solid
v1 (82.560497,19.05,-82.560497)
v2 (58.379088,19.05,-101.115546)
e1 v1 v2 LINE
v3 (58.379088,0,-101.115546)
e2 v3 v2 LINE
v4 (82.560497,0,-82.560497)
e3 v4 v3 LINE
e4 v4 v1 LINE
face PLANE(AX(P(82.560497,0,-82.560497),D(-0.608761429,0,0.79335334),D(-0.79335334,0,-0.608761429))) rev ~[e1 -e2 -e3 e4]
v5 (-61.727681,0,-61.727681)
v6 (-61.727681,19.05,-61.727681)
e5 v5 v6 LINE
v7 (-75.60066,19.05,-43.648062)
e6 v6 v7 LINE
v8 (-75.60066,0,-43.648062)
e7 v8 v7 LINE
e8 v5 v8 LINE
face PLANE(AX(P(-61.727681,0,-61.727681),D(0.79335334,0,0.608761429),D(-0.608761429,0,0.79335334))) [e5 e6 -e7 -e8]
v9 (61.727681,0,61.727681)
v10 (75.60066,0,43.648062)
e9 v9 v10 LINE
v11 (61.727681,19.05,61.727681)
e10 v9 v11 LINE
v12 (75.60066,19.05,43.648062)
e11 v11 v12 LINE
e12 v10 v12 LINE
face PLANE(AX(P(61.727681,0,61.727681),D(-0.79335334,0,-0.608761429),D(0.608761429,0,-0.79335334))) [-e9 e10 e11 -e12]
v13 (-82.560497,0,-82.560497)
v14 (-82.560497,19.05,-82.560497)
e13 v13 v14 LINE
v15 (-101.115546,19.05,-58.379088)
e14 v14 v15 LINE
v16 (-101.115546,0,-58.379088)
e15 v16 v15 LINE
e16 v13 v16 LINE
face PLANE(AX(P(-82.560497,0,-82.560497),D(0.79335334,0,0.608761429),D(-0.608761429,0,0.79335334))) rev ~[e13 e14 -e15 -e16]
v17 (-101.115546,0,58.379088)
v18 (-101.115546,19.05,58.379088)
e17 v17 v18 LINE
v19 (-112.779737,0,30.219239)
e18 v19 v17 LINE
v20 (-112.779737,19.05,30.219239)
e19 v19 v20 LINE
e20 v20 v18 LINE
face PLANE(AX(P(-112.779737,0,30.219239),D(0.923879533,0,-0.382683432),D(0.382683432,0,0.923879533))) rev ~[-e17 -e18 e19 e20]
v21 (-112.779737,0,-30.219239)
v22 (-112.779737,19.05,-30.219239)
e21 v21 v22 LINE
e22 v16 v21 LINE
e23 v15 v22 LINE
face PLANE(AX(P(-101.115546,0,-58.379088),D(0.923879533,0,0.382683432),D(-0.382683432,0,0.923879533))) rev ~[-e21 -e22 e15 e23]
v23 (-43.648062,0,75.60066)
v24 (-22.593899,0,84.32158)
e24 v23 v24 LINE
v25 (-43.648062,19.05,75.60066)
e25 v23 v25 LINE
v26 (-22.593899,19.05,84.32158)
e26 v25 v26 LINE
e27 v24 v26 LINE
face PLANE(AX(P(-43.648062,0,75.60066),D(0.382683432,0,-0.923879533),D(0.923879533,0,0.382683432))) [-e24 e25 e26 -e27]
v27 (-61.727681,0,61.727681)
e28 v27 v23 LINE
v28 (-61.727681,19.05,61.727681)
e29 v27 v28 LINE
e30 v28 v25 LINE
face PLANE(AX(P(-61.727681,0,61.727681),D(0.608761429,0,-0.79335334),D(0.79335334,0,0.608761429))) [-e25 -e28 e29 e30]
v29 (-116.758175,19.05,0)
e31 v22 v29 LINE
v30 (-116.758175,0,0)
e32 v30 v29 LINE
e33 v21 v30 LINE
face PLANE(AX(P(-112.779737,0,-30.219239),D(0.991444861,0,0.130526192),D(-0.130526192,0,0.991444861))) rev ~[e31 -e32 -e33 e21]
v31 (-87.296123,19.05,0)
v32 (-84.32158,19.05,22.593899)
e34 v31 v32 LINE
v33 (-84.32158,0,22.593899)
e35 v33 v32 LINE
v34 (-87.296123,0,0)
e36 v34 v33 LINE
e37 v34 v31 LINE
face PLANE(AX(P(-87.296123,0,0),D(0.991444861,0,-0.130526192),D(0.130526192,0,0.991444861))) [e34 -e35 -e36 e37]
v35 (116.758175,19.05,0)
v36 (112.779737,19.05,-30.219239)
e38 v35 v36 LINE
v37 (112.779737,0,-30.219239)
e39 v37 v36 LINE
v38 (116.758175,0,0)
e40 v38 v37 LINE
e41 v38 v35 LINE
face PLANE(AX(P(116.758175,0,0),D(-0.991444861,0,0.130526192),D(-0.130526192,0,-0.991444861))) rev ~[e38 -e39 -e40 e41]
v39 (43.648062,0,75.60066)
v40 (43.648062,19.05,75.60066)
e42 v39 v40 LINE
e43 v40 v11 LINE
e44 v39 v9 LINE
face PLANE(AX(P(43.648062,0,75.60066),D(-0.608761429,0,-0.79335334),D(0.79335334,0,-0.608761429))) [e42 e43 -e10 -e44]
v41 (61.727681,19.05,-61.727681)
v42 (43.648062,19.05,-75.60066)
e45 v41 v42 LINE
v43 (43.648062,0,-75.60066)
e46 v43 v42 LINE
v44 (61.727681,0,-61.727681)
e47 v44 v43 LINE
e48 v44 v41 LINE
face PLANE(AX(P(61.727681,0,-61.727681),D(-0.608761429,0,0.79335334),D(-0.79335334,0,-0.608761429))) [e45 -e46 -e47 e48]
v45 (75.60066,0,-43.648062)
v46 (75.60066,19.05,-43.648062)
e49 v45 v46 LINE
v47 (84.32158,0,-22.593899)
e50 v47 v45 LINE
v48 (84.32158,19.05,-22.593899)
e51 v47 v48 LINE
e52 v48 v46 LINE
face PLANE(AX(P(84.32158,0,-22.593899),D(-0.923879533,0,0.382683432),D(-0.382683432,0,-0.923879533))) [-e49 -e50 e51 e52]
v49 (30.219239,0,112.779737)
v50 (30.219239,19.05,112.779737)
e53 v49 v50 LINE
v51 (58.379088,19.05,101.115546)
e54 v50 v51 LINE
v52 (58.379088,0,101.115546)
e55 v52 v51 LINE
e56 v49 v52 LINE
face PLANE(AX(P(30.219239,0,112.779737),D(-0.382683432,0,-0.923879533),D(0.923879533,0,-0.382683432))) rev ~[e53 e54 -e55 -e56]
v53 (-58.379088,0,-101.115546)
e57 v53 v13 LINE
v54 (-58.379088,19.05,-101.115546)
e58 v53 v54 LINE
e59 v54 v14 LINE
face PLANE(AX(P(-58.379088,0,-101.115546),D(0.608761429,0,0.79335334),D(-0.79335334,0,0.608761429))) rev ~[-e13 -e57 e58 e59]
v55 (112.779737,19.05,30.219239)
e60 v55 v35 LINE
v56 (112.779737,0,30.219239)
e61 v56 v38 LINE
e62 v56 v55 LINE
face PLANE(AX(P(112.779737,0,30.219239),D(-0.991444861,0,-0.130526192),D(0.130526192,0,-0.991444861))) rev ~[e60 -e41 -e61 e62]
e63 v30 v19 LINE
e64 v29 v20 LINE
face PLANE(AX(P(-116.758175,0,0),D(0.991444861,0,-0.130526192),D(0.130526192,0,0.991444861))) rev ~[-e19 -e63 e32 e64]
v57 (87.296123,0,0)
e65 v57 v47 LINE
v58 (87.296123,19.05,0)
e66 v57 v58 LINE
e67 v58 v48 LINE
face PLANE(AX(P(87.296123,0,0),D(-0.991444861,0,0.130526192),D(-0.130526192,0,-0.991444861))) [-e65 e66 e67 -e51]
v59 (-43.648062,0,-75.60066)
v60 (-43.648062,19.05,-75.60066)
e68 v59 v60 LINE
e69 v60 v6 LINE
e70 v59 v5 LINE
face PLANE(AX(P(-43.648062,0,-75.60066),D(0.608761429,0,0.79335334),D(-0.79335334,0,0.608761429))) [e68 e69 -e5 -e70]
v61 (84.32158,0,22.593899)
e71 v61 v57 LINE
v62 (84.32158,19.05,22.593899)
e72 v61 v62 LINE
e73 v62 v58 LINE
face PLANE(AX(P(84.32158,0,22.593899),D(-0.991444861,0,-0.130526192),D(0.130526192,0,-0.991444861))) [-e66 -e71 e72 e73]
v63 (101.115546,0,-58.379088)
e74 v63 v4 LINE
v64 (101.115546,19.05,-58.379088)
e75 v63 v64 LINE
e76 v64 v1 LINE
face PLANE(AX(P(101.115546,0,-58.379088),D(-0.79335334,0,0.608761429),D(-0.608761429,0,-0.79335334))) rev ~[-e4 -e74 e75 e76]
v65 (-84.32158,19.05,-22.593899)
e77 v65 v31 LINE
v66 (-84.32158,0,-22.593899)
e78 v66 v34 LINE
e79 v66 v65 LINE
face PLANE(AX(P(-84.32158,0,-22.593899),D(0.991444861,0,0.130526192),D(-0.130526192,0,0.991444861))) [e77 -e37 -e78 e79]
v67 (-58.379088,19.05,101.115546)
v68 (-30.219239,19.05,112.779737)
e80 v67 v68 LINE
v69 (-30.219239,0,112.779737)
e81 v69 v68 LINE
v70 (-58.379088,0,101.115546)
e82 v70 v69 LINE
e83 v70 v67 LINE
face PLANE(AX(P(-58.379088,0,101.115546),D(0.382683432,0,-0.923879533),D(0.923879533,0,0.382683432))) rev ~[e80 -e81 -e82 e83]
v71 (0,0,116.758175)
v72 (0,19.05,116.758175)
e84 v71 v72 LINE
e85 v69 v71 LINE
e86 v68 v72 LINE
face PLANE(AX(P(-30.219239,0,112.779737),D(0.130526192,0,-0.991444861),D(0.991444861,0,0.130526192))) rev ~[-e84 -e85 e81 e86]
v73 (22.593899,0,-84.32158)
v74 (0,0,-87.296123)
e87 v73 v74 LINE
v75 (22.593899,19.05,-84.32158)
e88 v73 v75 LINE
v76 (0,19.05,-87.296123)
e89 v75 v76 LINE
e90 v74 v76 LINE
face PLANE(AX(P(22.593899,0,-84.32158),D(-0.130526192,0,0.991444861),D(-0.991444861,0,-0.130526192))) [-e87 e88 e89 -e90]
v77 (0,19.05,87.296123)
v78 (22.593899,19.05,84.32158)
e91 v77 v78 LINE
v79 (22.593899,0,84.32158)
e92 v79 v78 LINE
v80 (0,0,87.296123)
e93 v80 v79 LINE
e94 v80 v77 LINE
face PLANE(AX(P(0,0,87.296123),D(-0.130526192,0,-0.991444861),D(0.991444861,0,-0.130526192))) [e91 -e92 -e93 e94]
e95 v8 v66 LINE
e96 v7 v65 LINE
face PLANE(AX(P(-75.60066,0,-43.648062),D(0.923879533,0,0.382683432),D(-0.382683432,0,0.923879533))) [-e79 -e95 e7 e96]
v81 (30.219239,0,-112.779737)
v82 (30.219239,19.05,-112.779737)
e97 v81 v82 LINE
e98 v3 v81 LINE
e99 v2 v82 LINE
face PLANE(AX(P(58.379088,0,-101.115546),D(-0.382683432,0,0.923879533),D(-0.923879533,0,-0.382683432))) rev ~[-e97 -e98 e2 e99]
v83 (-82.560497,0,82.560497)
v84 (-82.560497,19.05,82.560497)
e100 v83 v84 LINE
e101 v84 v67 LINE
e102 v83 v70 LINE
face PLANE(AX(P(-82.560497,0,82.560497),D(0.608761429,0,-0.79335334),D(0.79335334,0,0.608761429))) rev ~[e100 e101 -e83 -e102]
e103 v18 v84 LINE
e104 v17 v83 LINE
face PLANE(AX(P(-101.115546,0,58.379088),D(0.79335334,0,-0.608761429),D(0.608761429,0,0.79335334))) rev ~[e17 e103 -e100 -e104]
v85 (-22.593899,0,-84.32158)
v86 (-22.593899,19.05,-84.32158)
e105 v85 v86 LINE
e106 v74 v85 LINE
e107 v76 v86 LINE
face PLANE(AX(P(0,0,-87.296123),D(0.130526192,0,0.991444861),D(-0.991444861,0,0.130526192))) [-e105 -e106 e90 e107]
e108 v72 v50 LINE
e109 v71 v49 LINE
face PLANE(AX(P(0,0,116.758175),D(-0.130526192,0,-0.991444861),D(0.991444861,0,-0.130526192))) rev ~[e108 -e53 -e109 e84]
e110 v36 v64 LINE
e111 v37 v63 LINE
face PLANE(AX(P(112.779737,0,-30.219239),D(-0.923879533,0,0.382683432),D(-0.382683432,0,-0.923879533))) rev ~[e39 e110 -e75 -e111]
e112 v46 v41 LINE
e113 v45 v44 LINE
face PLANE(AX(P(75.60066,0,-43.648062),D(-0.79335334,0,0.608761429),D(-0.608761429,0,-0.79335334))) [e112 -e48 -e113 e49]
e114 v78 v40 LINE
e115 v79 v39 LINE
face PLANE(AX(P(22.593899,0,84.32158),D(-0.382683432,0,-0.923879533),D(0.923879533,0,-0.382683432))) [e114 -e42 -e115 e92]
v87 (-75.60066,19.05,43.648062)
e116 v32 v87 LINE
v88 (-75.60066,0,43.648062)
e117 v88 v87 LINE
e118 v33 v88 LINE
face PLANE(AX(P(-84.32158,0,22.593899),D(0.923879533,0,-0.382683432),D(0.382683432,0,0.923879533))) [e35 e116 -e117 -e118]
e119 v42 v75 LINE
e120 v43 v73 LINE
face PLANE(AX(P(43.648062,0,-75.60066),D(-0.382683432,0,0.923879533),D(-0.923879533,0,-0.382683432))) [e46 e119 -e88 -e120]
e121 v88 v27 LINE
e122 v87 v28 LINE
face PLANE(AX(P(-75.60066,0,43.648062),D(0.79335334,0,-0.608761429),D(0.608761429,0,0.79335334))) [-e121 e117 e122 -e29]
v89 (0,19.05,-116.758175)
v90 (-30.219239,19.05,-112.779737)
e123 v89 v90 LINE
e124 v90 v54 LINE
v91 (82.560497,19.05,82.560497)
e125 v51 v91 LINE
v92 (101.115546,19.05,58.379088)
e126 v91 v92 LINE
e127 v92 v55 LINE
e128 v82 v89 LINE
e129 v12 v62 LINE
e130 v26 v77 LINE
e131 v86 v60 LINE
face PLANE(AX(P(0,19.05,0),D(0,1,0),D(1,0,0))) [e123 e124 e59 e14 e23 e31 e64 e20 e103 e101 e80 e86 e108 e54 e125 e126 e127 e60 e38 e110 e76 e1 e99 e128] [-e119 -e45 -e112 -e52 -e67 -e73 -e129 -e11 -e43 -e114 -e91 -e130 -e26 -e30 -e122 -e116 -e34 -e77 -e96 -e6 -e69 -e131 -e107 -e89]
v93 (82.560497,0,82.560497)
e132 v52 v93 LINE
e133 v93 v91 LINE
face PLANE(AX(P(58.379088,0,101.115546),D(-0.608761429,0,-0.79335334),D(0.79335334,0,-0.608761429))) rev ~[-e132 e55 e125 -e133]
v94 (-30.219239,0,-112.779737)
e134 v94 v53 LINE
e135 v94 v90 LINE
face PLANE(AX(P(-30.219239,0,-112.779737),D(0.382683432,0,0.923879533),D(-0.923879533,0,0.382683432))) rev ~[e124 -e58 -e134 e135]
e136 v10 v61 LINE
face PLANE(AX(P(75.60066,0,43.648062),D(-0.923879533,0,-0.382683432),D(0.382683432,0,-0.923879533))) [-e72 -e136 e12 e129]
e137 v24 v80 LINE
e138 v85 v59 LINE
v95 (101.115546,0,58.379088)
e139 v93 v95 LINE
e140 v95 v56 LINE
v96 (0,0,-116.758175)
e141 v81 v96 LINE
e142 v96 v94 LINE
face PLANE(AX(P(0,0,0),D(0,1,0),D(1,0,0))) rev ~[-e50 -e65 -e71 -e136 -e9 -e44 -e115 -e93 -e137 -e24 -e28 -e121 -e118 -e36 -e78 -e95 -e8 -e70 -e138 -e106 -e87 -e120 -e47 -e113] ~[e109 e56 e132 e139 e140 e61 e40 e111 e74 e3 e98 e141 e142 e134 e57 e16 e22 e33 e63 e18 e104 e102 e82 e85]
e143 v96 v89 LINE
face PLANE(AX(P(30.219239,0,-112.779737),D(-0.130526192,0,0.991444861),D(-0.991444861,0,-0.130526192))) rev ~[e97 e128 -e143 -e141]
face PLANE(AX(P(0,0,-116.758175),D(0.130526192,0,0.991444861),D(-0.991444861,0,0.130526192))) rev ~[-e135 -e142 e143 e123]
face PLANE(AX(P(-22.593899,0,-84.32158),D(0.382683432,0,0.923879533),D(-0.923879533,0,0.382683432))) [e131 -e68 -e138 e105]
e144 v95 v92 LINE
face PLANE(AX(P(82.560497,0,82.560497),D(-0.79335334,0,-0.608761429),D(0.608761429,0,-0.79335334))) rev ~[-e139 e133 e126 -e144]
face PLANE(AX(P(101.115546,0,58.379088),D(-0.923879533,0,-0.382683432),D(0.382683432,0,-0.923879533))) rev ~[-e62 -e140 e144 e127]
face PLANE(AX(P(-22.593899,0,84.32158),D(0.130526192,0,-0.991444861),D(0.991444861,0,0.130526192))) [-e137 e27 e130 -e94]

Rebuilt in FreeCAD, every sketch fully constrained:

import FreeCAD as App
import Part
import Sketcher

V = App.Vector
Q = App.Units.Quantity


def add_polygon(sketch, points):
    """Adds a closed chain of lines whose ends are joined by coincident constraints."""
    first, n = sketch.GeometryCount, len(points)
    for a, b in zip(points, points[1:] + points[:1]):
        sketch.addGeometry(Part.LineSegment(App.Vector(*a, 0), App.Vector(*b, 0)), False)
    for i in range(n):
        sketch.addConstraint(Sketcher.Constraint("Coincident", first + i, 2, first + (i + 1) % n, 1))

doc = App.newDocument("Part")
body = doc.addObject("PartDesign::Body", "Body")

# Sketch on XZ plane
sketch1 = body.newObject("Sketcher::SketchObject", "Sketch")
sketch1.AttachmentSupport = (doc.getObject("XZ_Plane"), [""])
sketch1.MapMode = "FlatFace"
add_polygon(sketch1, [(0, 117), (30, 113), (58, 101), (83, 83), (101, 58), (113, 30), (117, 0), (113, -30), (101, -58), (83, -83), (58, -101), (30, -113), (0, -117), (-30, -113), (-58, -101), (-83, -83), (-101, -58), (-113, -30), (-117, 0), (-113, 30), (-101, 58), (-83, 83), (-58, 101), (-30, 113)])  # lines 0-23
add_polygon(sketch1, [(23, 84), (0, 87), (-23, 84), (-44, 76), (-62, 62), (-76, 44), (-84, 23), (-87, 0), (-84, -23), (-76, -44), (-62, -62), (-44, -76), (-23, -84), (0, -87), (23, -84), (44, -76), (62, -62), (76, -44), (84, -23), (87, 0), (84, 23), (76, 44), (62, 62), (44, 76)])  # lines 24-47
sketch1.addConstraint(Sketcher.Constraint("Symmetric", 0, 2, 12, 2, -1, 1))
sketch1.addConstraint(Sketcher.Constraint("Symmetric", 1, 2, 13, 2, -1, 1))
sketch1.addConstraint(Sketcher.Constraint("Symmetric", 2, 2, 14, 2, -1, 1))
sketch1.addConstraint(Sketcher.Constraint("Symmetric", 3, 2, 15, 2, -1, 1))
sketch1.addConstraint(Sketcher.Constraint("Symmetric", 4, 2, 16, 2, -1, 1))
sketch1.addConstraint(Sketcher.Constraint("Symmetric", 5, 2, 17, 2, -1, 1))
sketch1.addConstraint(Sketcher.Constraint("Symmetric", 6, 2, 18, 2, -1, 1))
sketch1.addConstraint(Sketcher.Constraint("Symmetric", 7, 2, 19, 2, -1, 1))
sketch1.addConstraint(Sketcher.Constraint("Symmetric", 8, 2, 20, 2, -1, 1))
sketch1.addConstraint(Sketcher.Constraint("Symmetric", 9, 2, 21, 2, -1, 1))
sketch1.addConstraint(Sketcher.Constraint("Symmetric", 10, 2, 22, 2, -1, 1))
sketch1.addConstraint(Sketcher.Constraint("Symmetric", 11, 2, 23, 2, -1, 1))
sketch1.addConstraint(Sketcher.Constraint("Symmetric", 24, 2, 36, 2, -1, 1))
sketch1.addConstraint(Sketcher.Constraint("Symmetric", 25, 2, 37, 2, -1, 1))
sketch1.addConstraint(Sketcher.Constraint("Symmetric", 26, 2, 38, 2, -1, 1))
sketch1.addConstraint(Sketcher.Constraint("Symmetric", 27, 2, 39, 2, -1, 1))
sketch1.addConstraint(Sketcher.Constraint("Symmetric", 28, 2, 40, 2, -1, 1))
sketch1.addConstraint(Sketcher.Constraint("Symmetric", 29, 2, 41, 2, -1, 1))
sketch1.addConstraint(Sketcher.Constraint("Symmetric", 30, 2, 42, 2, -1, 1))
sketch1.addConstraint(Sketcher.Constraint("Symmetric", 31, 2, 43, 2, -1, 1))
sketch1.addConstraint(Sketcher.Constraint("Symmetric", 32, 2, 44, 2, -1, 1))
sketch1.addConstraint(Sketcher.Constraint("Symmetric", 33, 2, 45, 2, -1, 1))
sketch1.addConstraint(Sketcher.Constraint("Symmetric", 34, 2, 46, 2, -1, 1))
sketch1.addConstraint(Sketcher.Constraint("Symmetric", 35, 2, 47, 2, -1, 1))
sketch1.addConstraint(Sketcher.Constraint("Symmetric", 10, 2, 12, 2, -2))
sketch1.addConstraint(Sketcher.Constraint("Symmetric", 9, 2, 13, 2, -2))
sketch1.addConstraint(Sketcher.Constraint("Symmetric", 8, 2, 14, 2, -2))
sketch1.addConstraint(Sketcher.Constraint("Symmetric", 7, 2, 15, 2, -2))
sketch1.addConstraint(Sketcher.Constraint("Symmetric", 6, 2, 16, 2, -2))
sketch1.addConstraint(Sketcher.Constraint("Symmetric", 35, 2, 37, 2, -2))
sketch1.addConstraint(Sketcher.Constraint("Symmetric", 34, 2, 38, 2, -2))
sketch1.addConstraint(Sketcher.Constraint("Symmetric", 33, 2, 39, 2, -2))
sketch1.addConstraint(Sketcher.Constraint("Symmetric", 32, 2, 40, 2, -2))
sketch1.addConstraint(Sketcher.Constraint("Symmetric", 31, 2, 41, 2, -2))
sketch1.addConstraint(Sketcher.Constraint("PointOnObject", 5, 2, -1))
sketch1.addConstraint(Sketcher.Constraint("PointOnObject", 11, 2, -2))
sketch1.addConstraint(Sketcher.Constraint("PointOnObject", 24, 2, -2))
sketch1.addConstraint(Sketcher.Constraint("PointOnObject", 30, 2, -1))
sketch1.addConstraint(Sketcher.Constraint("Perpendicular", 0, 6))
sketch1.addConstraint(Sketcher.Constraint("Perpendicular", 1, 7))
sketch1.addConstraint(Sketcher.Constraint("Perpendicular", 2, 8))
sketch1.addConstraint(Sketcher.Constraint("Perpendicular", 18, 24))
sketch1.addConstraint(Sketcher.Constraint("Parallel", 22, 26))
sketch1.addConstraint(Sketcher.Constraint("Parallel", 21, 27))
sketch1.addConstraint(Sketcher.Constraint("Parallel", 20, 28))
sketch1.addConstraint(Sketcher.Constraint("Parallel", 19, 29))
sketch1.addConstraint(Sketcher.Constraint("Perpendicular", 24, 30))
sketch1.addConstraint(Sketcher.Constraint("Equal", 0, 1))
sketch1.addConstraint(Sketcher.Constraint("Equal", 1, 2))
sketch1.addConstraint(Sketcher.Constraint("Equal", 2, 3))
sketch1.addConstraint(Sketcher.Constraint("Equal", 3, 4))
sketch1.addConstraint(Sketcher.Constraint("Equal", 4, 5))
sketch1.addConstraint(Sketcher.Constraint("Equal", 25, 26))
sketch1.addConstraint(Sketcher.Constraint("Equal", 26, 27))
sketch1.addConstraint(Sketcher.Constraint("Equal", 27, 28))
sketch1.addConstraint(Sketcher.Constraint("Equal", 28, 29))
sketch1.addConstraint(Sketcher.Constraint("Equal", 29, 30))
sketch1.addConstraint(Sketcher.Constraint("Distance", 0, Q("1.2 in")))
sketch1.addConstraint(Sketcher.Constraint("Angle", 0, Q("-7.5 deg")))
sketch1.addConstraint(Sketcher.Constraint("Angle", 1, Q("-22.5 deg")))
sketch1.addConstraint(Sketcher.Constraint("Angle", 2, Q("-37.5 deg")))
sketch1.addConstraint(Sketcher.Constraint("DistanceY", 25, 2, 22, 2, Q("1.1203999 in")))
pad1 = body.newObject("PartDesign::Pad", "Pad")
pad1.Profile = sketch1
pad1.Length = Q("0.75 in")
pad1.Reversed = True

doc.recompute()
